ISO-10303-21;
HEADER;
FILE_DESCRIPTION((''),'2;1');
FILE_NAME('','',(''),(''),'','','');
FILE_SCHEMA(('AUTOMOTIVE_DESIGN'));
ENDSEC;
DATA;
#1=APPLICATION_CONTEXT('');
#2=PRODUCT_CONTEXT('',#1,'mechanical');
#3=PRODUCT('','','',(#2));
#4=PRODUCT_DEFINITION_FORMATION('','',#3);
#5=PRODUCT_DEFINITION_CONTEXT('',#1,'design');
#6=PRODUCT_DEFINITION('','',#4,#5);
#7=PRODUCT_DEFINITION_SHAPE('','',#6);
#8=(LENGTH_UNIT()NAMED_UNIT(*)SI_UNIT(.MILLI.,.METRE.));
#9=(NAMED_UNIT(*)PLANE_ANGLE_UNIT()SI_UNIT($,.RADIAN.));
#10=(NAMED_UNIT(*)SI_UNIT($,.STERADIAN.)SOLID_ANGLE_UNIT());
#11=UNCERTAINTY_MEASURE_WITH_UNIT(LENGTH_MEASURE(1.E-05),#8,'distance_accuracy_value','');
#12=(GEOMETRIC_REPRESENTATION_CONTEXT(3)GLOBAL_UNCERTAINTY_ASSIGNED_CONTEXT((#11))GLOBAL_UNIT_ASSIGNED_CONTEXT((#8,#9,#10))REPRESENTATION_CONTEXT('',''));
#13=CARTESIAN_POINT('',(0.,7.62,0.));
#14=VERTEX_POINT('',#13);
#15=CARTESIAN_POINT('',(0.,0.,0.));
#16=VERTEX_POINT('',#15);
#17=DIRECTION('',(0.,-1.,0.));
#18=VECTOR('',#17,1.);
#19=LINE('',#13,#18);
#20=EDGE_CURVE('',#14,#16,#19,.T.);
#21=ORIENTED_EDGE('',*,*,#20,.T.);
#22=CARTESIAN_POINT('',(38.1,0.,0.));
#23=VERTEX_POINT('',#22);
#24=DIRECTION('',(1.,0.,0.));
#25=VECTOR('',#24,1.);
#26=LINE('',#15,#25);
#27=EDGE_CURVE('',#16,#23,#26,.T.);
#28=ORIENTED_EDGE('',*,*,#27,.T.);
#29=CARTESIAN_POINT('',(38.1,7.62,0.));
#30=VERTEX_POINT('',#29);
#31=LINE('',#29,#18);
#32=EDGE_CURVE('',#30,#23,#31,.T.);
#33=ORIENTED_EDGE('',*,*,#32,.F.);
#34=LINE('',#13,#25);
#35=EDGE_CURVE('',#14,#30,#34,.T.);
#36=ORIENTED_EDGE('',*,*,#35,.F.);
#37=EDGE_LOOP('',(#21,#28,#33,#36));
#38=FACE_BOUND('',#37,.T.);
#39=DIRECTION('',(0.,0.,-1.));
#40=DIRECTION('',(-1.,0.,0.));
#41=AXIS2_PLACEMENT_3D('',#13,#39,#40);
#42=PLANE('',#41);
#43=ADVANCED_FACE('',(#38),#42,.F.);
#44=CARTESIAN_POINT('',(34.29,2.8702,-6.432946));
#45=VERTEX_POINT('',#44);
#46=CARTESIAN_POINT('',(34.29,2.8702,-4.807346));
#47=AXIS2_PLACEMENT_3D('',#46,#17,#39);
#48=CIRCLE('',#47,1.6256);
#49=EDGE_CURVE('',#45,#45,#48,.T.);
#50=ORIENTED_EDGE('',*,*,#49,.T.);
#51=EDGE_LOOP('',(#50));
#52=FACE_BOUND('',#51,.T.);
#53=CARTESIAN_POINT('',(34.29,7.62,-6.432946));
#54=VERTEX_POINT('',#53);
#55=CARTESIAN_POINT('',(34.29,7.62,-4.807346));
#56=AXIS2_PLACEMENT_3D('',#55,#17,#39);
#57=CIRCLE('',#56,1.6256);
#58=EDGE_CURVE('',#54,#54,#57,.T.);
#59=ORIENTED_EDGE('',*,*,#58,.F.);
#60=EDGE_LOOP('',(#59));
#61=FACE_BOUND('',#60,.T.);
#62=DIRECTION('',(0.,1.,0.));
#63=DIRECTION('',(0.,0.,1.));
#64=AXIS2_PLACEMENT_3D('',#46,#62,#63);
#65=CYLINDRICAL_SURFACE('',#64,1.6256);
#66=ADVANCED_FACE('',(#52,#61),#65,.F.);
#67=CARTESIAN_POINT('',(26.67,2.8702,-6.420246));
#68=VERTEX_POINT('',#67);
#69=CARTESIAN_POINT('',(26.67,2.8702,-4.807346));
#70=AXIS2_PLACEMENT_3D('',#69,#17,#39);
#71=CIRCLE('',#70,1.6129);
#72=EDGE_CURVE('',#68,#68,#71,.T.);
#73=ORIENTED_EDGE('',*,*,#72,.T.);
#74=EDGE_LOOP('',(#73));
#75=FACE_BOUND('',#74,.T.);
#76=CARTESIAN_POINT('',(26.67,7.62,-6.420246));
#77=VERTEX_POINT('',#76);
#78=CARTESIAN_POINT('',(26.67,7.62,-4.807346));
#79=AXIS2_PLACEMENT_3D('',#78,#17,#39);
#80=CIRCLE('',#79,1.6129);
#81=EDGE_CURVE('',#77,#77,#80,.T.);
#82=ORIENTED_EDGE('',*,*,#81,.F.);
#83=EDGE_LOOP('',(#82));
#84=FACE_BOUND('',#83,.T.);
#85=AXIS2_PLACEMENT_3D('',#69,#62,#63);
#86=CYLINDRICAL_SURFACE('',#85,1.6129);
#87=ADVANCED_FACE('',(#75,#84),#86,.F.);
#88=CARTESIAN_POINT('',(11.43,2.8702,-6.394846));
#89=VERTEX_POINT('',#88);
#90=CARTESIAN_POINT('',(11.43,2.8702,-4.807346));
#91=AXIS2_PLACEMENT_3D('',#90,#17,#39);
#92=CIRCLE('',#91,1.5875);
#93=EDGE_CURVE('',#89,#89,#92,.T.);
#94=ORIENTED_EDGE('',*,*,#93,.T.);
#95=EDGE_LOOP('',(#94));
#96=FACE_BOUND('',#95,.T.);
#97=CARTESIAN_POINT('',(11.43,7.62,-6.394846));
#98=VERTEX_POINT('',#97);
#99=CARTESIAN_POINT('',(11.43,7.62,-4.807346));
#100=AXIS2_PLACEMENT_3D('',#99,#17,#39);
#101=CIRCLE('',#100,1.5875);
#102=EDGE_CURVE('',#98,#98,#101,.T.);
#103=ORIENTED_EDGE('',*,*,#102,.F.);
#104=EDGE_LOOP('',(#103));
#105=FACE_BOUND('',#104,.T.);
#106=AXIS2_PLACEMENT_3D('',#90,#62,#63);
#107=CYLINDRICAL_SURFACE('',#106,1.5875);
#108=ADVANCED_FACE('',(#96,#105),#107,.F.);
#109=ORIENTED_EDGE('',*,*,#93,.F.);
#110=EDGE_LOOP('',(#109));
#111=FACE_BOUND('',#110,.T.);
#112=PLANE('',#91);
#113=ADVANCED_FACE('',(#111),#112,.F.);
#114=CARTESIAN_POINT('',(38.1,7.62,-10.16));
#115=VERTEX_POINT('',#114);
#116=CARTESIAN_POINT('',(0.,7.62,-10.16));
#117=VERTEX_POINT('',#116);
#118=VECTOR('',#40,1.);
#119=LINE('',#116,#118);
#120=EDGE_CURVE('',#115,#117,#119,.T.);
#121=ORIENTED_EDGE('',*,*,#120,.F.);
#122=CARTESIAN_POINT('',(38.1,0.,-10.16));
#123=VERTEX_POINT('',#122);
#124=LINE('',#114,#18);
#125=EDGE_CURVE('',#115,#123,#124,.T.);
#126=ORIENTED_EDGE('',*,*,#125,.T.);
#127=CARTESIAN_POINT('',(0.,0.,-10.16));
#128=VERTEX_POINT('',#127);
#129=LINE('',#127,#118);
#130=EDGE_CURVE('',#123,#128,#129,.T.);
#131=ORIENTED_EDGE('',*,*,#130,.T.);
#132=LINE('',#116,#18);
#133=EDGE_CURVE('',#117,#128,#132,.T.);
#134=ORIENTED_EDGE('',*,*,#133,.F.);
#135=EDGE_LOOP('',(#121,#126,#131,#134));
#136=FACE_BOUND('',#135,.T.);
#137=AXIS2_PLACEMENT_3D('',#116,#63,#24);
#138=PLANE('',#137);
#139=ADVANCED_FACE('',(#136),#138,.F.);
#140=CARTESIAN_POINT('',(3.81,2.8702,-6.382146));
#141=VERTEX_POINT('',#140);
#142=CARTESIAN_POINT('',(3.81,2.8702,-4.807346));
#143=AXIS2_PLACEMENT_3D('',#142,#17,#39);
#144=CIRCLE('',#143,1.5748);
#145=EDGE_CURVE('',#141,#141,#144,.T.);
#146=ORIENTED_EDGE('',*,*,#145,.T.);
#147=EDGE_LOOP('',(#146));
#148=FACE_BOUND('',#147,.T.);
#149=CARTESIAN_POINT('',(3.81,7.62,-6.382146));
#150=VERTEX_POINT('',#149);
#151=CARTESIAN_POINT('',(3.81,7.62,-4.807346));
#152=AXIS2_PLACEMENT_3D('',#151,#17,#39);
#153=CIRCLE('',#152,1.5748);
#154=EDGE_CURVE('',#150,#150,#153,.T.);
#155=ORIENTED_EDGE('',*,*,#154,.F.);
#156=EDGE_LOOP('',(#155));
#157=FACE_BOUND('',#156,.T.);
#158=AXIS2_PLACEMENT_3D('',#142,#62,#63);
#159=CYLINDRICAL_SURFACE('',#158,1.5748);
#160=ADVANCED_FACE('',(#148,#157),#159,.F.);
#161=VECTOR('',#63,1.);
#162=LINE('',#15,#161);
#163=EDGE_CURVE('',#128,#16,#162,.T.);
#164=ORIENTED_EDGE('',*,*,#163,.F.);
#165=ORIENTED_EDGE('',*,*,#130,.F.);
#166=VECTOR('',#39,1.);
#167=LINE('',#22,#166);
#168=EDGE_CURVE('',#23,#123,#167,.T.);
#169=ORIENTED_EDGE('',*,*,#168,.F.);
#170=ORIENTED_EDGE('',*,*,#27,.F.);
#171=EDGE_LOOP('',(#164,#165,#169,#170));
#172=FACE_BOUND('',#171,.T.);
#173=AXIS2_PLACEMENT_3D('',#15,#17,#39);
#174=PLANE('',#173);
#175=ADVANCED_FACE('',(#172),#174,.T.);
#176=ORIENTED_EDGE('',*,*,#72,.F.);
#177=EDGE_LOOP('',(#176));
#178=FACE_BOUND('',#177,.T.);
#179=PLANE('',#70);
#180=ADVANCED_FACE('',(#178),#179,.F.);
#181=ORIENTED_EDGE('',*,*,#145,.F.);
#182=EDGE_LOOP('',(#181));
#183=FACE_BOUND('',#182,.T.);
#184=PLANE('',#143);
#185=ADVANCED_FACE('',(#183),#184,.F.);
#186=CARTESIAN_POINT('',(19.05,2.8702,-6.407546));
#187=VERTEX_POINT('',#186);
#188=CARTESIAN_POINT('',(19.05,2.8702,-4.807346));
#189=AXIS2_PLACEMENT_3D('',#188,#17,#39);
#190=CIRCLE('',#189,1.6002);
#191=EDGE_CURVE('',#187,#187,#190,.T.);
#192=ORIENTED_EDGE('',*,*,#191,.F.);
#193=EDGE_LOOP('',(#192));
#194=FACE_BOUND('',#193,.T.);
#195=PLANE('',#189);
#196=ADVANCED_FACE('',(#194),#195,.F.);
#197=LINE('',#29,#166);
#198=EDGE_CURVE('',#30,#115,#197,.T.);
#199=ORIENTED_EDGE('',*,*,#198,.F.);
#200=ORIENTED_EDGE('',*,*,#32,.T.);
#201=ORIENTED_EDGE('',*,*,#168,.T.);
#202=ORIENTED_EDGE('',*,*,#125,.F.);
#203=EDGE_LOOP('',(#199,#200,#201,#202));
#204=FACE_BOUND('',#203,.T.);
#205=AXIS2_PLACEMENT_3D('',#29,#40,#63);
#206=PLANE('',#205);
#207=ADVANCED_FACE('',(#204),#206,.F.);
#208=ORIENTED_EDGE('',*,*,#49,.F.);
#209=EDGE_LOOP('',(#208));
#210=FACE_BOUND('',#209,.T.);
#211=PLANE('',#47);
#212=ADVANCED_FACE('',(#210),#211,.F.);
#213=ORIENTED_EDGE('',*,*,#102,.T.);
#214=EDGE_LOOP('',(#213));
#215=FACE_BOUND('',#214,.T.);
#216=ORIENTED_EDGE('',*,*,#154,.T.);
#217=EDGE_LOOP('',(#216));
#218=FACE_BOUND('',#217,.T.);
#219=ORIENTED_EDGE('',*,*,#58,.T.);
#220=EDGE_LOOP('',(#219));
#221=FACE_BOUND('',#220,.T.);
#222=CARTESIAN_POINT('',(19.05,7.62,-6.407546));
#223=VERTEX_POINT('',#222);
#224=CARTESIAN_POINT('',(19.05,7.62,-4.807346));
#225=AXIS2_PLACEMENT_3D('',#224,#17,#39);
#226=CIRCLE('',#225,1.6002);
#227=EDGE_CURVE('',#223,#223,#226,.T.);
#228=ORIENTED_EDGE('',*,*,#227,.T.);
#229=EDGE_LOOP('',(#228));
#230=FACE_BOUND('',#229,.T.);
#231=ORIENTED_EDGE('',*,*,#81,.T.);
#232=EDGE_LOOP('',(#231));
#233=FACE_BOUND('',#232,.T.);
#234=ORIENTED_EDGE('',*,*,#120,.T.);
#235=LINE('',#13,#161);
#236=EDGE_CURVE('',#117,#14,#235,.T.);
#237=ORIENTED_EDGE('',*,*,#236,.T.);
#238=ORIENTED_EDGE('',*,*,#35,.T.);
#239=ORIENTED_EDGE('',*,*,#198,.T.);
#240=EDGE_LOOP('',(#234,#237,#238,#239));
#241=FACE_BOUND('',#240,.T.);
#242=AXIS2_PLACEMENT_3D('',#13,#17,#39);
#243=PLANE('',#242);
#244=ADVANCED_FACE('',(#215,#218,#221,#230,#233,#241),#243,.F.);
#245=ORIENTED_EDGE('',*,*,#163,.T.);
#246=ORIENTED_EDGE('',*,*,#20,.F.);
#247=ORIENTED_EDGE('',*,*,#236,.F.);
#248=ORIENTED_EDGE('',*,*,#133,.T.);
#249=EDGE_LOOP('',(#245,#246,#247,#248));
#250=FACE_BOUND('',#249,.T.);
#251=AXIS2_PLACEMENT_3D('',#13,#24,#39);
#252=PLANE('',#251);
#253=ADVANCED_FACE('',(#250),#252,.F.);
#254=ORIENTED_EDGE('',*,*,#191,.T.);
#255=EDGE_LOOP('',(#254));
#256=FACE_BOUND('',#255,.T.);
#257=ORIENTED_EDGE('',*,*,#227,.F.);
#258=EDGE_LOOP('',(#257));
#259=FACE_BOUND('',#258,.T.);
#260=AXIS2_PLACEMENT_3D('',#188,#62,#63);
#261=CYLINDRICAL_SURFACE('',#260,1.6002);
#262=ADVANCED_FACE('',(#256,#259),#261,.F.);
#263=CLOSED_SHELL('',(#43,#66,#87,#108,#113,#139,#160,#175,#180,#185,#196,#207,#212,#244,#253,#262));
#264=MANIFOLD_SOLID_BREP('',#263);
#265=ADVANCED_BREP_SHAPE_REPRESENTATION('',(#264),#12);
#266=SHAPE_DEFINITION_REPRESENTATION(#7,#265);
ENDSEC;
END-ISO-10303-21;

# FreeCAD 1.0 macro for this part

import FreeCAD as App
import Part
import Sketcher
Q = App.Units.Quantity


def add_polygon(sketch, points):
    """Adds a closed chain of lines whose ends are joined by coincident constraints."""
    first, n = sketch.GeometryCount, len(points)
    for a, b in zip(points, points[1:] + points[:1]):
        sketch.addGeometry(Part.LineSegment(App.Vector(*a, 0), App.Vector(*b, 0)), False)
    for i in range(n):
        sketch.addConstraint(Sketcher.Constraint("Coincident", first + i, 2, first + (i + 1) % n, 1))

doc = App.newDocument("Part")
body = doc.addObject("PartDesign::Body", "Body")

sketch1 = doc.addObject("Sketcher::SketchObject", "Sketch")
body.addObject(sketch1)
sketch1.AttachmentSupport = (doc.XZ_Plane, [""])
sketch1.MapMode = "FlatFace"
add_polygon(sketch1, [(0, -10), (0, 0), (38, 0), (38, -10)])
sketch1.addConstraint([
    Sketcher.Constraint("Vertical", 0),
    Sketcher.Constraint("Horizontal", 1),
    Sketcher.Constraint("Vertical", 2),
    Sketcher.Constraint("Horizontal", 3),
    Sketcher.Constraint("Coincident", 0, 2, -1, 1),
    Sketcher.Constraint("DistanceX", 1, 1, 1, 2, Q("1.5 in")),
    Sketcher.Constraint("DistanceY", 0, 1, 0, 2, Q("0.4 in")),
])
pad1 = doc.addObject("PartDesign::Pad", "Pad")
body.addObject(pad1)
pad1.Profile = sketch1
pad1.Length = Q("0.3 in")
pad1.Reversed = True

sketch2 = doc.addObject("Sketcher::SketchObject", "Sketch001")
body.addObject(sketch2)
sketch2.AttachmentSupport = (doc.XZ_Plane, [""])
sketch2.MapMode = "FlatFace"
sketch2.AttachmentOffset = App.Placement(App.Vector(0, 0, -0.3 * 25.4), App.Rotation())
sketch2.addGeometry([
    Part.Circle(App.Vector(3.8, -4.8, 0), App.Vector(0, 0, 1), 1.6),
    Part.Circle(App.Vector(11.4, -4.8, 0), App.Vector(0, 0, 1), 1.6),
    Part.Circle(App.Vector(19.1, -4.8, 0), App.Vector(0, 0, 1), 1.6),
    Part.Circle(App.Vector(26.7, -4.8, 0), App.Vector(0, 0, 1), 1.6),
    Part.Circle(App.Vector(34.3, -4.8, 0), App.Vector(0, 0, 1), 1.6),
], False)
sketch2.addConstraint([
    Sketcher.Constraint("Horizontal", 0, 3, 1, 3),
    Sketcher.Constraint("Horizontal", 1, 3, 2, 3),
    Sketcher.Constraint("Horizontal", 2, 3, 3, 3),
    Sketcher.Constraint("Horizontal", 3, 3, 4, 3),
    Sketcher.Constraint("Diameter", 0, Q("0.124 in")),
    Sketcher.Constraint("Diameter", 1, Q("0.125 in")),
    Sketcher.Constraint("Diameter", 2, Q("0.126 in")),
    Sketcher.Constraint("Diameter", 3, Q("0.127 in")),
    Sketcher.Constraint("Diameter", 4, Q("0.128 in")),
    Sketcher.Constraint("DistanceX", 0, 3, 1, 3, Q("0.3 in")),
    Sketcher.Constraint("DistanceX", 1, 3, 2, 3, Q("0.3 in")),
    Sketcher.Constraint("DistanceX", 2, 3, 3, 3, Q("0.3 in")),
    Sketcher.Constraint("DistanceX", 3, 3, 4, 3, Q("0.3 in")),
    Sketcher.Constraint("DistanceX", -1, 1, 0, 3, Q("0.15 in")),
    Sketcher.Constraint("DistanceY", 0, 3, -1, 1, 4.807346),
])
pocket1 = doc.addObject("PartDesign::Pocket", "Pocket")
body.addObject(pocket1)
pocket1.Profile = sketch2
pocket1.Length = Q("0.187 in")
pocket1.Reversed = True

doc.recompute()
